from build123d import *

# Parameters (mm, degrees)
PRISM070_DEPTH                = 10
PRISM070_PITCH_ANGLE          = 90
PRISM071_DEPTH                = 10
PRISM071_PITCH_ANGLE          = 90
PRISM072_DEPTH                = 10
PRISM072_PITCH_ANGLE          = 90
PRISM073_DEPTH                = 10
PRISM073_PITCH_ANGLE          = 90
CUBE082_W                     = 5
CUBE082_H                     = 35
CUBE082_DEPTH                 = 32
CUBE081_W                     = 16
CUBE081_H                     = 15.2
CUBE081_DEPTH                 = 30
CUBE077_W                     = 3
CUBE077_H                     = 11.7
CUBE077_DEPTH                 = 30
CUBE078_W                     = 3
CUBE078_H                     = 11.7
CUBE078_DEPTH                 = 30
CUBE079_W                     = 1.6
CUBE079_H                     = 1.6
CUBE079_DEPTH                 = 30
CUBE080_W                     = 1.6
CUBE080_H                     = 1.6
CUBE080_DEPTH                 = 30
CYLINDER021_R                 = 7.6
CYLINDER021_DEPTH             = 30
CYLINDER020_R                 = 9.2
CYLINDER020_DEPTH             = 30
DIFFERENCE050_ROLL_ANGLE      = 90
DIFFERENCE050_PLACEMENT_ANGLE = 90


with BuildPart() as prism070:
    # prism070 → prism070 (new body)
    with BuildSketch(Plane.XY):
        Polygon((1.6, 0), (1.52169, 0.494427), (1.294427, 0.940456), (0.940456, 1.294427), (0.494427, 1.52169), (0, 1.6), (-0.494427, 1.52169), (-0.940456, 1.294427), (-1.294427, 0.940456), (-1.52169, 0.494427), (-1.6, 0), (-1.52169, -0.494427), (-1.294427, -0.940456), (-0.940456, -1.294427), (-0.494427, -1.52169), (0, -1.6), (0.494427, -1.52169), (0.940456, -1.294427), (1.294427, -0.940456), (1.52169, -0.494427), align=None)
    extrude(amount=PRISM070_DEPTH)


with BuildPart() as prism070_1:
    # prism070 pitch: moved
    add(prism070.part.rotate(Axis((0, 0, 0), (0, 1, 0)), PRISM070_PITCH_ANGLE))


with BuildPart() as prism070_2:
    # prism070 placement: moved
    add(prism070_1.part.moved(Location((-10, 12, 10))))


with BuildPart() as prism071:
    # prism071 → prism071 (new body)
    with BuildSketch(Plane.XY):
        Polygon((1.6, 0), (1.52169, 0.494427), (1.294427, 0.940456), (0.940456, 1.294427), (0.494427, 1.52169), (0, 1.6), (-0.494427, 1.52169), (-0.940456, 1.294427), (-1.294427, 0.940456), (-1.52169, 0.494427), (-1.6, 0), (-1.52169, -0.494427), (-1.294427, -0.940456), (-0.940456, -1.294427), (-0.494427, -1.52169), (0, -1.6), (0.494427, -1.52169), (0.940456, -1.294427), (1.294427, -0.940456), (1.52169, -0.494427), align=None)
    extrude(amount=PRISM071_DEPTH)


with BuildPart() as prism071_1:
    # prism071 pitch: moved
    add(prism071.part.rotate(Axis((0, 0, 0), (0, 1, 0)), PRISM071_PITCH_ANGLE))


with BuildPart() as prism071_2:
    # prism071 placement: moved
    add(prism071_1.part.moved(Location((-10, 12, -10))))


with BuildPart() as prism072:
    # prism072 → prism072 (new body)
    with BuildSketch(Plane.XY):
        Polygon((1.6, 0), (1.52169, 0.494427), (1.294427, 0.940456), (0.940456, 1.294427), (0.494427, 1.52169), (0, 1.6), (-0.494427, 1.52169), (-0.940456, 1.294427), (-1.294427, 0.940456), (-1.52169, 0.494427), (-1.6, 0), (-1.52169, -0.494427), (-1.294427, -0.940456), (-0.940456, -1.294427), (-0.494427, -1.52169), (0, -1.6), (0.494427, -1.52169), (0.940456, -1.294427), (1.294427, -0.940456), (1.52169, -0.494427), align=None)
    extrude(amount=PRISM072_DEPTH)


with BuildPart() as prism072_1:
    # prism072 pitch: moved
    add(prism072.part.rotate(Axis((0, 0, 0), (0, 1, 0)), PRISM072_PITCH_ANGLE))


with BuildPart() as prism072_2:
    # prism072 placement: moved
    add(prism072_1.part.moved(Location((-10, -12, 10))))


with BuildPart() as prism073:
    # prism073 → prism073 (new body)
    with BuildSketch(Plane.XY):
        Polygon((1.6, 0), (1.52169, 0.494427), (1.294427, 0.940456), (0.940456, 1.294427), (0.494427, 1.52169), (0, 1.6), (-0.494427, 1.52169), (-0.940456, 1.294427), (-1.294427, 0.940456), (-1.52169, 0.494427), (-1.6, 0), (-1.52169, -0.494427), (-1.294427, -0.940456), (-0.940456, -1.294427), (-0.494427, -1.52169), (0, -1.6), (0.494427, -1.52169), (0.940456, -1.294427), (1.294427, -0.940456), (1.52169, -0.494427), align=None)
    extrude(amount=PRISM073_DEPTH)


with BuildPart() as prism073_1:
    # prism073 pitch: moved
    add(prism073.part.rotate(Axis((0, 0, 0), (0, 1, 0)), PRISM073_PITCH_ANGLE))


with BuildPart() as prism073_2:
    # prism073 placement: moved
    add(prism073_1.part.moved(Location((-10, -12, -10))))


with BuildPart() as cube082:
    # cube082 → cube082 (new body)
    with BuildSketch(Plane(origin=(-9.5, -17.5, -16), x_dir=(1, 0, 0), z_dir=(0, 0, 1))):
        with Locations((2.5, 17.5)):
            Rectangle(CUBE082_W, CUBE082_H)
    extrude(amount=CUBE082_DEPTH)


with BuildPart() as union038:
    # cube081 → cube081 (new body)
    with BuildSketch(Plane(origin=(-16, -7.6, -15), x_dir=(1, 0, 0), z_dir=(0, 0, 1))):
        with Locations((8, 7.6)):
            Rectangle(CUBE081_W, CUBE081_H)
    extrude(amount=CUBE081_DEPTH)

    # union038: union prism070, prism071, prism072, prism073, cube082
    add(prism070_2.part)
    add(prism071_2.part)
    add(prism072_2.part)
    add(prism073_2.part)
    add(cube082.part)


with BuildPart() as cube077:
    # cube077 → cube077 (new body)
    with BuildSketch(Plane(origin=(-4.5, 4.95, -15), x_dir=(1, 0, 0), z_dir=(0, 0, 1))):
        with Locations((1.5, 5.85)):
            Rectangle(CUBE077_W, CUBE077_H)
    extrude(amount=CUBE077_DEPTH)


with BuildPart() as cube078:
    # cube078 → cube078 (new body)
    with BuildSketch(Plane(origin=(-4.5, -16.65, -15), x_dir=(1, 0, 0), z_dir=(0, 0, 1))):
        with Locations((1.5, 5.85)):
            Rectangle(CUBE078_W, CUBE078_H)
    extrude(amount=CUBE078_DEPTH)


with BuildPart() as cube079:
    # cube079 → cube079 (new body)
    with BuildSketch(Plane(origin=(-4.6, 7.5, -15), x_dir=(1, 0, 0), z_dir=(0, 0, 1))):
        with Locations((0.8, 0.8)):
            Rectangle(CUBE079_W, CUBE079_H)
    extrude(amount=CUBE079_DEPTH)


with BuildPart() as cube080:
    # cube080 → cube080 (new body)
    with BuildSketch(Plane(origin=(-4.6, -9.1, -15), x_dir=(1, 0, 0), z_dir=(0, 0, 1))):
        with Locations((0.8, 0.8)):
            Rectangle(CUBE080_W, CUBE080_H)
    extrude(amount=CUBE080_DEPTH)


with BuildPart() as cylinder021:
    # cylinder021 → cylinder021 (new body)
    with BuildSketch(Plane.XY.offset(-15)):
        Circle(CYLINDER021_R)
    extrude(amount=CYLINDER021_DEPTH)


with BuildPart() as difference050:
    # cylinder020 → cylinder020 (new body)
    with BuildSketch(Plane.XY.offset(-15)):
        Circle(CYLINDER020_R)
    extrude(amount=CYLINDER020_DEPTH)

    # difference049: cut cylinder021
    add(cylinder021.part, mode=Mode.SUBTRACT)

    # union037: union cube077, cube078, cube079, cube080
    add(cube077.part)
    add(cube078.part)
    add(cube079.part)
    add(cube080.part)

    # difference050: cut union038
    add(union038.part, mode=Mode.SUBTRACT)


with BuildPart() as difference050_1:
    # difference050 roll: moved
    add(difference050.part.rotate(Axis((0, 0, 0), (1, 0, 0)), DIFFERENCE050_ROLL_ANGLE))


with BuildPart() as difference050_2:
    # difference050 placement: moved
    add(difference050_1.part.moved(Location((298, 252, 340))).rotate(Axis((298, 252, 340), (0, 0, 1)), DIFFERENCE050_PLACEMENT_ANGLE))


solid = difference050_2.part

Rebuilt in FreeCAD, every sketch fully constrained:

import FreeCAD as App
import Part
import Sketcher
Q = App.Units.Quantity

doc = App.newDocument("Part")
body = doc.addObject("PartDesign::Body", "Body")

sketch1 = body.newObject("Sketcher::SketchObject", "Sketch")
sketch1.AttachmentSupport = (doc.getObject("XY_Plane"), [""])
sketch1.MapMode = "FlatFace"
sketch1.addGeometry([
    Part.LineSegment(App.Vector(1.6, 0, 0), App.Vector(1.52169, 0.494427, 0)),
    Part.LineSegment(App.Vector(1.52169, 0.494427, 0), App.Vector(1.294427, 0.940456, 0)),
    Part.LineSegment(App.Vector(1.294427, 0.940456, 0), App.Vector(0.940456, 1.294427, 0)),
    Part.LineSegment(App.Vector(0.940456, 1.294427, 0), App.Vector(0.494427, 1.52169, 0)),
    Part.LineSegment(App.Vector(0.494427, 1.52169, 0), App.Vector(0, 1.6, 0)),
    Part.LineSegment(App.Vector(0, 1.6, 0), App.Vector(-0.494427, 1.52169, 0)),
    Part.LineSegment(App.Vector(-0.494427, 1.52169, 0), App.Vector(-0.940456, 1.294427, 0)),
    Part.LineSegment(App.Vector(-0.940456, 1.294427, 0), App.Vector(-1.294427, 0.940456, 0)),
    Part.LineSegment(App.Vector(-1.294427, 0.940456, 0), App.Vector(-1.52169, 0.494427, 0)),
    Part.LineSegment(App.Vector(-1.52169, 0.494427, 0), App.Vector(-1.6, 0, 0)),
    Part.LineSegment(App.Vector(-1.6, 0, 0), App.Vector(-1.52169, -0.494427, 0)),
    Part.LineSegment(App.Vector(-1.52169, -0.494427, 0), App.Vector(-1.294427, -0.940456, 0)),
    Part.LineSegment(App.Vector(-1.294427, -0.940456, 0), App.Vector(-0.940456, -1.294427, 0)),
    Part.LineSegment(App.Vector(-0.940456, -1.294427, 0), App.Vector(-0.494427, -1.52169, 0)),
    Part.LineSegment(App.Vector(-0.494427, -1.52169, 0), App.Vector(0, -1.6, 0)),
    Part.LineSegment(App.Vector(0, -1.6, 0), App.Vector(0.494427, -1.52169, 0)),
    Part.LineSegment(App.Vector(0.494427, -1.52169, 0), App.Vector(0.940456, -1.294427, 0)),
    Part.LineSegment(App.Vector(0.940456, -1.294427, 0), App.Vector(1.294427, -0.940456, 0)),
    Part.LineSegment(App.Vector(1.294427, -0.940456, 0), App.Vector(1.52169, -0.494427, 0)),
    Part.LineSegment(App.Vector(1.52169, -0.494427, 0), App.Vector(1.6, 0, 0)),
], False)
sketch1.addConstraint([
    Sketcher.Constraint("Coincident", 0, 2, 1, 1),
    Sketcher.Constraint("Coincident", 1, 2, 2, 1),
    Sketcher.Constraint("Coincident", 2, 2, 3, 1),
    Sketcher.Constraint("Coincident", 3, 2, 4, 1),
    Sketcher.Constraint("Coincident", 4, 2, 5, 1),
    Sketcher.Constraint("Coincident", 5, 2, 6, 1),
    Sketcher.Constraint("Coincident", 6, 2, 7, 1),
    Sketcher.Constraint("Coincident", 7, 2, 8, 1),
    Sketcher.Constraint("Coincident", 8, 2, 9, 1),
    Sketcher.Constraint("Coincident", 9, 2, 10, 1),
    Sketcher.Constraint("Coincident", 10, 2, 11, 1),
    Sketcher.Constraint("Coincident", 11, 2, 12, 1),
    Sketcher.Constraint("Coincident", 12, 2, 13, 1),
    Sketcher.Constraint("Coincident", 13, 2, 14, 1),
    Sketcher.Constraint("Coincident", 14, 2, 15, 1),
    Sketcher.Constraint("Coincident", 15, 2, 16, 1),
    Sketcher.Constraint("Coincident", 16, 2, 17, 1),
    Sketcher.Constraint("Coincident", 17, 2, 18, 1),
    Sketcher.Constraint("Coincident", 18, 2, 19, 1),
    Sketcher.Constraint("Coincident", 19, 2, 0, 1),
    Sketcher.Constraint("Symmetric", 0, 2, 10, 2, -1, 1),
    Sketcher.Constraint("Symmetric", 1, 2, 11, 2, -1, 1),
    Sketcher.Constraint("Symmetric", 2, 2, 12, 2, -1, 1),
    Sketcher.Constraint("Symmetric", 3, 2, 13, 2, -1, 1),
    Sketcher.Constraint("Symmetric", 4, 2, 14, 2, -1, 1),
    Sketcher.Constraint("Symmetric", 5, 2, 15, 2, -1, 1),
    Sketcher.Constraint("Symmetric", 6, 2, 16, 2, -1, 1),
    Sketcher.Constraint("Symmetric", 7, 2, 17, 2, -1, 1),
    Sketcher.Constraint("Symmetric", 8, 2, 18, 2, -1, 1),
    Sketcher.Constraint("Symmetric", 9, 2, 19, 2, -1, 1),
    Sketcher.Constraint("Symmetric", 3, 2, 5, 2, -2),
    Sketcher.Constraint("Symmetric", 2, 2, 6, 2, -2),
    Sketcher.Constraint("Symmetric", 1, 2, 7, 2, -2),
    Sketcher.Constraint("Symmetric", 0, 2, 8, 2, -2),
    Sketcher.Constraint("PointOnObject", 4, 2, -2),
    Sketcher.Constraint("PointOnObject", 9, 2, -1),
    Sketcher.Constraint("Perpendicular", 0, 5),
    Sketcher.Constraint("Perpendicular", 1, 6),
    Sketcher.Constraint("Perpendicular", 2, 7),
    Sketcher.Constraint("Equal", 0, 1),
    Sketcher.Constraint("Equal", 1, 2),
    Sketcher.Constraint("Equal", 2, 3),
    Sketcher.Constraint("Equal", 3, 4),
    Sketcher.Constraint("Angle", 1, Q("116.999987 deg")),
    Sketcher.Constraint("DistanceY", -1, 1, 4, 2, Q("1.6 mm")),
    Sketcher.Constraint("DistanceY", 0, 2, 2, 2, Q("0.8 mm")),
])
pad1 = body.newObject("PartDesign::Pad", "Pad")
pad1.Profile = sketch1
pad1.Length = 10
body2 = doc.addObject("PartDesign::Body", "Body001")
doc.recompute()

body.Placement = App.Placement(App.Vector(0, 0, 0), App.Rotation(App.Vector(0, 1, 0), 90))
boolean = body2.newObject("PartDesign::Boolean", "Boolean")
boolean.Type = "Fuse"
boolean.addObjects([body])
body3 = doc.addObject("PartDesign::Body", "Body002")
doc.recompute()

body2.Placement = App.Placement(App.Vector(-10, 12, 10), App.Rotation(App.Vector(0, 0, 1), 0))
boolean2 = body3.newObject("PartDesign::Boolean", "Boolean001")
boolean2.Type = "Fuse"
boolean2.addObjects([body2])
body4 = doc.addObject("PartDesign::Body", "Body003")

sketch2 = body4.newObject("Sketcher::SketchObject", "Sketch001")
sketch2.AttachmentSupport = (doc.getObject("XY_Plane003"), [""])
sketch2.MapMode = "FlatFace"
sketch2.addGeometry([
    Part.LineSegment(App.Vector(1.6, 0, 0), App.Vector(1.52169, 0.494427, 0)),
    Part.LineSegment(App.Vector(1.52169, 0.494427, 0), App.Vector(1.294427, 0.940456, 0)),
    Part.LineSegment(App.Vector(1.294427, 0.940456, 0), App.Vector(0.940456, 1.294427, 0)),
    Part.LineSegment(App.Vector(0.940456, 1.294427, 0), App.Vector(0.494427, 1.52169, 0)),
    Part.LineSegment(App.Vector(0.494427, 1.52169, 0), App.Vector(0, 1.6, 0)),
    Part.LineSegment(App.Vector(0, 1.6, 0), App.Vector(-0.494427, 1.52169, 0)),
    Part.LineSegment(App.Vector(-0.494427, 1.52169, 0), App.Vector(-0.940456, 1.294427, 0)),
    Part.LineSegment(App.Vector(-0.940456, 1.294427, 0), App.Vector(-1.294427, 0.940456, 0)),
    Part.LineSegment(App.Vector(-1.294427, 0.940456, 0), App.Vector(-1.52169, 0.494427, 0)),
    Part.LineSegment(App.Vector(-1.52169, 0.494427, 0), App.Vector(-1.6, 0, 0)),
    Part.LineSegment(App.Vector(-1.6, 0, 0), App.Vector(-1.52169, -0.494427, 0)),
    Part.LineSegment(App.Vector(-1.52169, -0.494427, 0), App.Vector(-1.294427, -0.940456, 0)),
    Part.LineSegment(App.Vector(-1.294427, -0.940456, 0), App.Vector(-0.940456, -1.294427, 0)),
    Part.LineSegment(App.Vector(-0.940456, -1.294427, 0), App.Vector(-0.494427, -1.52169, 0)),
    Part.LineSegment(App.Vector(-0.494427, -1.52169, 0), App.Vector(0, -1.6, 0)),
    Part.LineSegment(App.Vector(0, -1.6, 0), App.Vector(0.494427, -1.52169, 0)),
    Part.LineSegment(App.Vector(0.494427, -1.52169, 0), App.Vector(0.940456, -1.294427, 0)),
    Part.LineSegment(App.Vector(0.940456, -1.294427, 0), App.Vector(1.294427, -0.940456, 0)),
    Part.LineSegment(App.Vector(1.294427, -0.940456, 0), App.Vector(1.52169, -0.494427, 0)),
    Part.LineSegment(App.Vector(1.52169, -0.494427, 0), App.Vector(1.6, 0, 0)),
], False)
sketch2.addConstraint([
    Sketcher.Constraint("Coincident", 0, 2, 1, 1),
    Sketcher.Constraint("Coincident", 1, 2, 2, 1),
    Sketcher.Constraint("Coincident", 2, 2, 3, 1),
    Sketcher.Constraint("Coincident", 3, 2, 4, 1),
    Sketcher.Constraint("Coincident", 4, 2, 5, 1),
    Sketcher.Constraint("Coincident", 5, 2, 6, 1),
    Sketcher.Constraint("Coincident", 6, 2, 7, 1),
    Sketcher.Constraint("Coincident", 7, 2, 8, 1),
    Sketcher.Constraint("Coincident", 8, 2, 9, 1),
    Sketcher.Constraint("Coincident", 9, 2, 10, 1),
    Sketcher.Constraint("Coincident", 10, 2, 11, 1),
    Sketcher.Constraint("Coincident", 11, 2, 12, 1),
    Sketcher.Constraint("Coincident", 12, 2, 13, 1),
    Sketcher.Constraint("Coincident", 13, 2, 14, 1),
    Sketcher.Constraint("Coincident", 14, 2, 15, 1),
    Sketcher.Constraint("Coincident", 15, 2, 16, 1),
    Sketcher.Constraint("Coincident", 16, 2, 17, 1),
    Sketcher.Constraint("Coincident", 17, 2, 18, 1),
    Sketcher.Constraint("Coincident", 18, 2, 19, 1),
    Sketcher.Constraint("Coincident", 19, 2, 0, 1),
    Sketcher.Constraint("Symmetric", 0, 2, 10, 2, -1, 1),
    Sketcher.Constraint("Symmetric", 1, 2, 11, 2, -1, 1),
    Sketcher.Constraint("Symmetric", 2, 2, 12, 2, -1, 1),
    Sketcher.Constraint("Symmetric", 3, 2, 13, 2, -1, 1),
    Sketcher.Constraint("Symmetric", 4, 2, 14, 2, -1, 1),
    Sketcher.Constraint("Symmetric", 5, 2, 15, 2, -1, 1),
    Sketcher.Constraint("Symmetric", 6, 2, 16, 2, -1, 1),
    Sketcher.Constraint("Symmetric", 7, 2, 17, 2, -1, 1),
    Sketcher.Constraint("Symmetric", 8, 2, 18, 2, -1, 1),
    Sketcher.Constraint("Symmetric", 9, 2, 19, 2, -1, 1),
    Sketcher.Constraint("Symmetric", 3, 2, 5, 2, -2),
    Sketcher.Constraint("Symmetric", 2, 2, 6, 2, -2),
    Sketcher.Constraint("Symmetric", 1, 2, 7, 2, -2),
    Sketcher.Constraint("Symmetric", 0, 2, 8, 2, -2),
    Sketcher.Constraint("PointOnObject", 4, 2, -2),
    Sketcher.Constraint("PointOnObject", 9, 2, -1),
    Sketcher.Constraint("Perpendicular", 0, 5),
    Sketcher.Constraint("Perpendicular", 1, 6),
    Sketcher.Constraint("Perpendicular", 2, 7),
    Sketcher.Constraint("Equal", 0, 1),
    Sketcher.Constraint("Equal", 1, 2),
    Sketcher.Constraint("Equal", 2, 3),
    Sketcher.Constraint("Equal", 3, 4),
    Sketcher.Constraint("Angle", 1, Q("116.999987 deg")),
    Sketcher.Constraint("DistanceY", -1, 1, 4, 2, Q("1.6 mm")),
    Sketcher.Constraint("DistanceY", 0, 2, 2, 2, Q("0.8 mm")),
])
pad2 = body4.newObject("PartDesign::Pad", "Pad001")
pad2.Profile = sketch2
pad2.Length = 10
body5 = doc.addObject("PartDesign::Body", "Body004")
doc.recompute()

body4.Placement = App.Placement(App.Vector(0, 0, 0), App.Rotation(App.Vector(0, 1, 0), 90))
boolean3 = body5.newObject("PartDesign::Boolean", "Boolean002")
boolean3.Type = "Fuse"
boolean3.addObjects([body4])
body6 = doc.addObject("PartDesign::Body", "Body005")
doc.recompute()

body5.Placement = App.Placement(App.Vector(-10, 12, -10), App.Rotation(App.Vector(0, 0, 1), 0))
boolean4 = body6.newObject("PartDesign::Boolean", "Boolean003")
boolean4.Type = "Fuse"
boolean4.addObjects([body5])
body7 = doc.addObject("PartDesign::Body", "Body006")

sketch3 = body7.newObject("Sketcher::SketchObject", "Sketch002")
sketch3.AttachmentSupport = (doc.getObject("XY_Plane006"), [""])
sketch3.MapMode = "FlatFace"
sketch3.addGeometry([
    Part.LineSegment(App.Vector(1.6, 0, 0), App.Vector(1.52169, 0.494427, 0)),
    Part.LineSegment(App.Vector(1.52169, 0.494427, 0), App.Vector(1.294427, 0.940456, 0)),
    Part.LineSegment(App.Vector(1.294427, 0.940456, 0), App.Vector(0.940456, 1.294427, 0)),
    Part.LineSegment(App.Vector(0.940456, 1.294427, 0), App.Vector(0.494427, 1.52169, 0)),
    Part.LineSegment(App.Vector(0.494427, 1.52169, 0), App.Vector(0, 1.6, 0)),
    Part.LineSegment(App.Vector(0, 1.6, 0), App.Vector(-0.494427, 1.52169, 0)),
    Part.LineSegment(App.Vector(-0.494427, 1.52169, 0), App.Vector(-0.940456, 1.294427, 0)),
    Part.LineSegment(App.Vector(-0.940456, 1.294427, 0), App.Vector(-1.294427, 0.940456, 0)),
    Part.LineSegment(App.Vector(-1.294427, 0.940456, 0), App.Vector(-1.52169, 0.494427, 0)),
    Part.LineSegment(App.Vector(-1.52169, 0.494427, 0), App.Vector(-1.6, 0, 0)),
    Part.LineSegment(App.Vector(-1.6, 0, 0), App.Vector(-1.52169, -0.494427, 0)),
    Part.LineSegment(App.Vector(-1.52169, -0.494427, 0), App.Vector(-1.294427, -0.940456, 0)),
    Part.LineSegment(App.Vector(-1.294427, -0.940456, 0), App.Vector(-0.940456, -1.294427, 0)),
    Part.LineSegment(App.Vector(-0.940456, -1.294427, 0), App.Vector(-0.494427, -1.52169, 0)),
    Part.LineSegment(App.Vector(-0.494427, -1.52169, 0), App.Vector(0, -1.6, 0)),
    Part.LineSegment(App.Vector(0, -1.6, 0), App.Vector(0.494427, -1.52169, 0)),
    Part.LineSegment(App.Vector(0.494427, -1.52169, 0), App.Vector(0.940456, -1.294427, 0)),
    Part.LineSegment(App.Vector(0.940456, -1.294427, 0), App.Vector(1.294427, -0.940456, 0)),
    Part.LineSegment(App.Vector(1.294427, -0.940456, 0), App.Vector(1.52169, -0.494427, 0)),
    Part.LineSegment(App.Vector(1.52169, -0.494427, 0), App.Vector(1.6, 0, 0)),
], False)
sketch3.addConstraint([
    Sketcher.Constraint("Coincident", 0, 2, 1, 1),
    Sketcher.Constraint("Coincident", 1, 2, 2, 1),
    Sketcher.Constraint("Coincident", 2, 2, 3, 1),
    Sketcher.Constraint("Coincident", 3, 2, 4, 1),
    Sketcher.Constraint("Coincident", 4, 2, 5, 1),
    Sketcher.Constraint("Coincident", 5, 2, 6, 1),
    Sketcher.Constraint("Coincident", 6, 2, 7, 1),
    Sketcher.Constraint("Coincident", 7, 2, 8, 1),
    Sketcher.Constraint("Coincident", 8, 2, 9, 1),
    Sketcher.Constraint("Coincident", 9, 2, 10, 1),
    Sketcher.Constraint("Coincident", 10, 2, 11, 1),
    Sketcher.Constraint("Coincident", 11, 2, 12, 1),
    Sketcher.Constraint("Coincident", 12, 2, 13, 1),
    Sketcher.Constraint("Coincident", 13, 2, 14, 1),
    Sketcher.Constraint("Coincident", 14, 2, 15, 1),
    Sketcher.Constraint("Coincident", 15, 2, 16, 1),
    Sketcher.Constraint("Coincident", 16, 2, 17, 1),
    Sketcher.Constraint("Coincident", 17, 2, 18, 1),
    Sketcher.Constraint("Coincident", 18, 2, 19, 1),
    Sketcher.Constraint("Coincident", 19, 2, 0, 1),
    Sketcher.Constraint("Symmetric", 0, 2, 10, 2, -1, 1),
    Sketcher.Constraint("Symmetric", 1, 2, 11, 2, -1, 1),
    Sketcher.Constraint("Symmetric", 2, 2, 12, 2, -1, 1),
    Sketcher.Constraint("Symmetric", 3, 2, 13, 2, -1, 1),
    Sketcher.Constraint("Symmetric", 4, 2, 14, 2, -1, 1),
    Sketcher.Constraint("Symmetric", 5, 2, 15, 2, -1, 1),
    Sketcher.Constraint("Symmetric", 6, 2, 16, 2, -1, 1),
    Sketcher.Constraint("Symmetric", 7, 2, 17, 2, -1, 1),
    Sketcher.Constraint("Symmetric", 8, 2, 18, 2, -1, 1),
    Sketcher.Constraint("Symmetric", 9, 2, 19, 2, -1, 1),
    Sketcher.Constraint("Symmetric", 3, 2, 5, 2, -2),
    Sketcher.Constraint("Symmetric", 2, 2, 6, 2, -2),
    Sketcher.Constraint("Symmetric", 1, 2, 7, 2, -2),
    Sketcher.Constraint("Symmetric", 0, 2, 8, 2, -2),
    Sketcher.Constraint("PointOnObject", 4, 2, -2),
    Sketcher.Constraint("PointOnObject", 9, 2, -1),
    Sketcher.Constraint("Perpendicular", 0, 5),
    Sketcher.Constraint("Perpendicular", 1, 6),
    Sketcher.Constraint("Perpendicular", 2, 7),
    Sketcher.Constraint("Equal", 0, 1),
    Sketcher.Constraint("Equal", 1, 2),
    Sketcher.Constraint("Equal", 2, 3),
    Sketcher.Constraint("Equal", 3, 4),
    Sketcher.Constraint("Angle", 1, Q("116.999987 deg")),
    Sketcher.Constraint("DistanceY", -1, 1, 4, 2, Q("1.6 mm")),
    Sketcher.Constraint("DistanceY", 0, 2, 2, 2, Q("0.8 mm")),
])
pad3 = body7.newObject("PartDesign::Pad", "Pad002")
pad3.Profile = sketch3
pad3.Length = 10
body8 = doc.addObject("PartDesign::Body", "Body007")
doc.recompute()

body7.Placement = App.Placement(App.Vector(0, 0, 0), App.Rotation(App.Vector(0, 1, 0), 90))
boolean5 = body8.newObject("PartDesign::Boolean", "Boolean004")
boolean5.Type = "Fuse"
boolean5.addObjects([body7])
body9 = doc.addObject("PartDesign::Body", "Body008")
doc.recompute()

body8.Placement = App.Placement(App.Vector(-10, -12, 10), App.Rotation(App.Vector(0, 0, 1), 0))
boolean6 = body9.newObject("PartDesign::Boolean", "Boolean005")
boolean6.Type = "Fuse"
boolean6.addObjects([body8])
body10 = doc.addObject("PartDesign::Body", "Body009")

sketch4 = body10.newObject("Sketcher::SketchObject", "Sketch003")
sketch4.AttachmentSupport = (doc.getObject("XY_Plane009"), [""])
sketch4.MapMode = "FlatFace"
sketch4.addGeometry([
    Part.LineSegment(App.Vector(1.6, 0, 0), App.Vector(1.52169, 0.494427, 0)),
    Part.LineSegment(App.Vector(1.52169, 0.494427, 0), App.Vector(1.294427, 0.940456, 0)),
    Part.LineSegment(App.Vector(1.294427, 0.940456, 0), App.Vector(0.940456, 1.294427, 0)),
    Part.LineSegment(App.Vector(0.940456, 1.294427, 0), App.Vector(0.494427, 1.52169, 0)),
    Part.LineSegment(App.Vector(0.494427, 1.52169, 0), App.Vector(0, 1.6, 0)),
    Part.LineSegment(App.Vector(0, 1.6, 0), App.Vector(-0.494427, 1.52169, 0)),
    Part.LineSegment(App.Vector(-0.494427, 1.52169, 0), App.Vector(-0.940456, 1.294427, 0)),
    Part.LineSegment(App.Vector(-0.940456, 1.294427, 0), App.Vector(-1.294427, 0.940456, 0)),
    Part.LineSegment(App.Vector(-1.294427, 0.940456, 0), App.Vector(-1.52169, 0.494427, 0)),
    Part.LineSegment(App.Vector(-1.52169, 0.494427, 0), App.Vector(-1.6, 0, 0)),
    Part.LineSegment(App.Vector(-1.6, 0, 0), App.Vector(-1.52169, -0.494427, 0)),
    Part.LineSegment(App.Vector(-1.52169, -0.494427, 0), App.Vector(-1.294427, -0.940456, 0)),
    Part.LineSegment(App.Vector(-1.294427, -0.940456, 0), App.Vector(-0.940456, -1.294427, 0)),
    Part.LineSegment(App.Vector(-0.940456, -1.294427, 0), App.Vector(-0.494427, -1.52169, 0)),
    Part.LineSegment(App.Vector(-0.494427, -1.52169, 0), App.Vector(0, -1.6, 0)),
    Part.LineSegment(App.Vector(0, -1.6, 0), App.Vector(0.494427, -1.52169, 0)),
    Part.LineSegment(App.Vector(0.494427, -1.52169, 0), App.Vector(0.940456, -1.294427, 0)),
    Part.LineSegment(App.Vector(0.940456, -1.294427, 0), App.Vector(1.294427, -0.940456, 0)),
    Part.LineSegment(App.Vector(1.294427, -0.940456, 0), App.Vector(1.52169, -0.494427, 0)),
    Part.LineSegment(App.Vector(1.52169, -0.494427, 0), App.Vector(1.6, 0, 0)),
], False)
sketch4.addConstraint([
    Sketcher.Constraint("Coincident", 0, 2, 1, 1),
    Sketcher.Constraint("Coincident", 1, 2, 2, 1),
    Sketcher.Constraint("Coincident", 2, 2, 3, 1),
    Sketcher.Constraint("Coincident", 3, 2, 4, 1),
    Sketcher.Constraint("Coincident", 4, 2, 5, 1),
    Sketcher.Constraint("Coincident", 5, 2, 6, 1),
    Sketcher.Constraint("Coincident", 6, 2, 7, 1),
    Sketcher.Constraint("Coincident", 7, 2, 8, 1),
    Sketcher.Constraint("Coincident", 8, 2, 9, 1),
    Sketcher.Constraint("Coincident", 9, 2, 10, 1),
    Sketcher.Constraint("Coincident", 10, 2, 11, 1),
    Sketcher.Constraint("Coincident", 11, 2, 12, 1),
    Sketcher.Constraint("Coincident", 12, 2, 13, 1),
    Sketcher.Constraint("Coincident", 13, 2, 14, 1),
    Sketcher.Constraint("Coincident", 14, 2, 15, 1),
    Sketcher.Constraint("Coincident", 15, 2, 16, 1),
    Sketcher.Constraint("Coincident", 16, 2, 17, 1),
    Sketcher.Constraint("Coincident", 17, 2, 18, 1),
    Sketcher.Constraint("Coincident", 18, 2, 19, 1),
    Sketcher.Constraint("Coincident", 19, 2, 0, 1),
    Sketcher.Constraint("Symmetric", 0, 2, 10, 2, -1, 1),
    Sketcher.Constraint("Symmetric", 1, 2, 11, 2, -1, 1),
    Sketcher.Constraint("Symmetric", 2, 2, 12, 2, -1, 1),
    Sketcher.Constraint("Symmetric", 3, 2, 13, 2, -1, 1),
    Sketcher.Constraint("Symmetric", 4, 2, 14, 2, -1, 1),
    Sketcher.Constraint("Symmetric", 5, 2, 15, 2, -1, 1),
    Sketcher.Constraint("Symmetric", 6, 2, 16, 2, -1, 1),
    Sketcher.Constraint("Symmetric", 7, 2, 17, 2, -1, 1),
    Sketcher.Constraint("Symmetric", 8, 2, 18, 2, -1, 1),
    Sketcher.Constraint("Symmetric", 9, 2, 19, 2, -1, 1),
    Sketcher.Constraint("Symmetric", 3, 2, 5, 2, -2),
    Sketcher.Constraint("Symmetric", 2, 2, 6, 2, -2),
    Sketcher.Constraint("Symmetric", 1, 2, 7, 2, -2),
    Sketcher.Constraint("Symmetric", 0, 2, 8, 2, -2),
    Sketcher.Constraint("PointOnObject", 4, 2, -2),
    Sketcher.Constraint("PointOnObject", 9, 2, -1),
    Sketcher.Constraint("Perpendicular", 0, 5),
    Sketcher.Constraint("Perpendicular", 1, 6),
    Sketcher.Constraint("Perpendicular", 2, 7),
    Sketcher.Constraint("Equal", 0, 1),
    Sketcher.Constraint("Equal", 1, 2),
    Sketcher.Constraint("Equal", 2, 3),
    Sketcher.Constraint("Equal", 3, 4),
    Sketcher.Constraint("Angle", 1, Q("116.999987 deg")),
    Sketcher.Constraint("DistanceY", -1, 1, 4, 2, Q("1.6 mm")),
    Sketcher.Constraint("DistanceY", 0, 2, 2, 2, Q("0.8 mm")),
])
pad4 = body10.newObject("PartDesign::Pad", "Pad003")
pad4.Profile = sketch4
pad4.Length = 10
body11 = doc.addObject("PartDesign::Body", "Body010")
doc.recompute()

body10.Placement = App.Placement(App.Vector(0, 0, 0), App.Rotation(App.Vector(0, 1, 0), 90))
boolean7 = body11.newObject("PartDesign::Boolean", "Boolean006")
boolean7.Type = "Fuse"
boolean7.addObjects([body10])
body12 = doc.addObject("PartDesign::Body", "Body011")
doc.recompute()

body11.Placement = App.Placement(App.Vector(-10, -12, -10), App.Rotation(App.Vector(0, 0, 1), 0))
boolean8 = body12.newObject("PartDesign::Boolean", "Boolean007")
boolean8.Type = "Fuse"
boolean8.addObjects([body11])
body13 = doc.addObject("PartDesign::Body", "Body012")

sketch5 = body13.newObject("Sketcher::SketchObject", "Sketch004")
sketch5.AttachmentSupport = (doc.getObject("XY_Plane012"), [""])
sketch5.MapMode = "FlatFace"
sketch5.AttachmentOffset = App.Placement(App.Vector(0, 0, -16), App.Rotation())
sketch5.addGeometry([
    Part.LineSegment(App.Vector(-9.5, 17.5, 0), App.Vector(-9.5, -17.5, 0)),
    Part.LineSegment(App.Vector(-9.5, -17.5, 0), App.Vector(-4.5, -17.5, 0)),
    Part.LineSegment(App.Vector(-4.5, -17.5, 0), App.Vector(-4.5, 17.5, 0)),
    Part.LineSegment(App.Vector(-4.5, 17.5, 0), App.Vector(-9.5, 17.5, 0)),
], False)
sketch5.addConstraint([
    Sketcher.Constraint("Coincident", 0, 2, 1, 1),
    Sketcher.Constraint("Coincident", 1, 2, 2, 1),
    Sketcher.Constraint("Coincident", 2, 2, 3, 1),
    Sketcher.Constraint("Coincident", 3, 2, 0, 1),
    Sketcher.Constraint("Vertical", 0),
    Sketcher.Constraint("Horizontal", 1),
    Sketcher.Constraint("Vertical", 2),
    Sketcher.Constraint("Horizontal", 3),
    Sketcher.Constraint("DistanceX", 1, 1, 1, 2, Q("5 mm")),
    Sketcher.Constraint("DistanceY", 0, 2, 0, 1, Q("35 mm")),
    Sketcher.Constraint("DistanceX", 0, 2, -1, 1, Q("9.5 mm")),
    Sketcher.Constraint("DistanceY", 0, 2, -1, 1, Q("17.5 mm")),
])
pad5 = body13.newObject("PartDesign::Pad", "Pad004")
pad5.Profile = sketch5
pad5.Length = 32
body14 = doc.addObject("PartDesign::Body", "Body013")
body14.AllowCompound = True

sketch6 = body14.newObject("Sketcher::SketchObject", "Sketch005")
sketch6.AttachmentSupport = (doc.getObject("XY_Plane013"), [""])
sketch6.MapMode = "FlatFace"
sketch6.AttachmentOffset = App.Placement(App.Vector(0, 0, -15), App.Rotation())
sketch6.addGeometry([
    Part.LineSegment(App.Vector(-16, 7.6, 0), App.Vector(-16, -7.6, 0)),
    Part.LineSegment(App.Vector(-16, -7.6, 0), App.Vector(0, -7.6, 0)),
    Part.LineSegment(App.Vector(0, -7.6, 0), App.Vector(0, 7.6, 0)),
    Part.LineSegment(App.Vector(0, 7.6, 0), App.Vector(-16, 7.6, 0)),
], False)
sketch6.addConstraint([
    Sketcher.Constraint("Coincident", 0, 2, 1, 1),
    Sketcher.Constraint("Coincident", 1, 2, 2, 1),
    Sketcher.Constraint("Coincident", 2, 2, 3, 1),
    Sketcher.Constraint("Coincident", 3, 2, 0, 1),
    Sketcher.Constraint("Vertical", 0),
    Sketcher.Constraint("Horizontal", 1),
    Sketcher.Constraint("Vertical", 2),
    Sketcher.Constraint("Horizontal", 3),
    Sketcher.Constraint("Symmetric", 1, 2, 2, 2, -1, 1),
    Sketcher.Constraint("DistanceX", 1, 1, 1, 2, Q("16 mm")),
    Sketcher.Constraint("DistanceY", 0, 2, 0, 1, Q("15.2 mm")),
])
pad6 = body14.newObject("PartDesign::Pad", "Pad005")
pad6.Profile = sketch6
pad6.Length = 30
doc.recompute()

boolean9 = body14.newObject("PartDesign::Boolean", "Boolean008")
boolean9.Type = "Fuse"
boolean9.addObjects([body3])
doc.recompute()

boolean10 = body14.newObject("PartDesign::Boolean", "Boolean009")
boolean10.Type = "Fuse"
boolean10.addObjects([body6])
doc.recompute()

boolean11 = body14.newObject("PartDesign::Boolean", "Boolean010")
boolean11.Type = "Fuse"
boolean11.addObjects([body9])
doc.recompute()

boolean12 = body14.newObject("PartDesign::Boolean", "Boolean011")
boolean12.Type = "Fuse"
boolean12.addObjects([body12])
doc.recompute()

boolean13 = body14.newObject("PartDesign::Boolean", "Boolean012")
boolean13.Type = "Fuse"
boolean13.addObjects([body13])
body15 = doc.addObject("PartDesign::Body", "Body014")

sketch7 = body15.newObject("Sketcher::SketchObject", "Sketch006")
sketch7.AttachmentSupport = (doc.getObject("XY_Plane014"), [""])
sketch7.MapMode = "FlatFace"
sketch7.AttachmentOffset = App.Placement(App.Vector(0, 0, -15), App.Rotation())
sketch7.addGeometry([
    Part.LineSegment(App.Vector(-4.5, 16.65, 0), App.Vector(-4.5, 4.95, 0)),
    Part.LineSegment(App.Vector(-4.5, 4.95, 0), App.Vector(-1.5, 4.95, 0)),
    Part.LineSegment(App.Vector(-1.5, 4.95, 0), App.Vector(-1.5, 16.65, 0)),
    Part.LineSegment(App.Vector(-1.5, 16.65, 0), App.Vector(-4.5, 16.65, 0)),
], False)
sketch7.addConstraint([
    Sketcher.Constraint("Coincident", 0, 2, 1, 1),
    Sketcher.Constraint("Coincident", 1, 2, 2, 1),
    Sketcher.Constraint("Coincident", 2, 2, 3, 1),
    Sketcher.Constraint("Coincident", 3, 2, 0, 1),
    Sketcher.Constraint("Vertical", 0),
    Sketcher.Constraint("Horizontal", 1),
    Sketcher.Constraint("Vertical", 2),
    Sketcher.Constraint("Horizontal", 3),
    Sketcher.Constraint("DistanceX", 1, 1, 1, 2, Q("3 mm")),
    Sketcher.Constraint("DistanceY", 0, 2, 0, 1, Q("11.7 mm")),
    Sketcher.Constraint("DistanceX", 0, 2, -1, 1, Q("4.5 mm")),
    Sketcher.Constraint("DistanceY", -1, 1, 0, 2, Q("4.95 mm")),
])
pad7 = body15.newObject("PartDesign::Pad", "Pad006")
pad7.Profile = sketch7
pad7.Length = 30
body16 = doc.addObject("PartDesign::Body", "Body015")

sketch8 = body16.newObject("Sketcher::SketchObject", "Sketch007")
sketch8.AttachmentSupport = (doc.getObject("XY_Plane015"), [""])
sketch8.MapMode = "FlatFace"
sketch8.AttachmentOffset = App.Placement(App.Vector(0, 0, -15), App.Rotation())
sketch8.addGeometry([
    Part.LineSegment(App.Vector(-4.5, -4.95, 0), App.Vector(-4.5, -16.65, 0)),
    Part.LineSegment(App.Vector(-4.5, -16.65, 0), App.Vector(-1.5, -16.65, 0)),
    Part.LineSegment(App.Vector(-1.5, -16.65, 0), App.Vector(-1.5, -4.95, 0)),
    Part.LineSegment(App.Vector(-1.5, -4.95, 0), App.Vector(-4.5, -4.95, 0)),
], False)
sketch8.addConstraint([
    Sketcher.Constraint("Coincident", 0, 2, 1, 1),
    Sketcher.Constraint("Coincident", 1, 2, 2, 1),
    Sketcher.Constraint("Coincident", 2, 2, 3, 1),
    Sketcher.Constraint("Coincident", 3, 2, 0, 1),
    Sketcher.Constraint("Vertical", 0),
    Sketcher.Constraint("Horizontal", 1),
    Sketcher.Constraint("Vertical", 2),
    Sketcher.Constraint("Horizontal", 3),
    Sketcher.Constraint("DistanceX", 1, 1, 1, 2, Q("3 mm")),
    Sketcher.Constraint("DistanceY", 0, 2, 0, 1, Q("11.7 mm")),
    Sketcher.Constraint("DistanceX", 0, 2, -1, 1, Q("4.5 mm")),
    Sketcher.Constraint("DistanceY", 0, 2, -1, 1, Q("16.65 mm")),
])
pad8 = body16.newObject("PartDesign::Pad", "Pad007")
pad8.Profile = sketch8
pad8.Length = 30
body17 = doc.addObject("PartDesign::Body", "Body016")

sketch9 = body17.newObject("Sketcher::SketchObject", "Sketch008")
sketch9.AttachmentSupport = (doc.getObject("XY_Plane016"), [""])
sketch9.MapMode = "FlatFace"
sketch9.AttachmentOffset = App.Placement(App.Vector(0, 0, -15), App.Rotation())
sketch9.addGeometry([
    Part.LineSegment(App.Vector(-4.6, 9.1, 0), App.Vector(-4.6, 7.5, 0)),
    Part.LineSegment(App.Vector(-4.6, 7.5, 0), App.Vector(-3, 7.5, 0)),
    Part.LineSegment(App.Vector(-3, 7.5, 0), App.Vector(-3, 9.1, 0)),
    Part.LineSegment(App.Vector(-3, 9.1, 0), App.Vector(-4.6, 9.1, 0)),
], False)
sketch9.addConstraint([
    Sketcher.Constraint("Coincident", 0, 2, 1, 1),
    Sketcher.Constraint("Coincident", 1, 2, 2, 1),
    Sketcher.Constraint("Coincident", 2, 2, 3, 1),
    Sketcher.Constraint("Coincident", 3, 2, 0, 1),
    Sketcher.Constraint("Vertical", 0),
    Sketcher.Constraint("Horizontal", 1),
    Sketcher.Constraint("Vertical", 2),
    Sketcher.Constraint("Horizontal", 3),
    Sketcher.Constraint("Equal", 3, 0),
    Sketcher.Constraint("DistanceX", 1, 1, 1, 2, Q("1.6 mm")),
    Sketcher.Constraint("DistanceX", 1, 2, -1, 1, Q("3 mm")),
    Sketcher.Constraint("DistanceY", -1, 1, 0, 2, Q("7.5 mm")),
])
pad9 = body17.newObject("PartDesign::Pad", "Pad008")
pad9.Profile = sketch9
pad9.Length = 30
body18 = doc.addObject("PartDesign::Body", "Body017")

sketch10 = body18.newObject("Sketcher::SketchObject", "Sketch009")
sketch10.AttachmentSupport = (doc.getObject("XY_Plane017"), [""])
sketch10.MapMode = "FlatFace"
sketch10.AttachmentOffset = App.Placement(App.Vector(0, 0, -15), App.Rotation())
sketch10.addGeometry([
    Part.LineSegment(App.Vector(-4.6, -7.5, 0), App.Vector(-4.6, -9.1, 0)),
    Part.LineSegment(App.Vector(-4.6, -9.1, 0), App.Vector(-3, -9.1, 0)),
    Part.LineSegment(App.Vector(-3, -9.1, 0), App.Vector(-3, -7.5, 0)),
    Part.LineSegment(App.Vector(-3, -7.5, 0), App.Vector(-4.6, -7.5, 0)),
], False)
sketch10.addConstraint([
    Sketcher.Constraint("Coincident", 0, 2, 1, 1),
    Sketcher.Constraint("Coincident", 1, 2, 2, 1),
    Sketcher.Constraint("Coincident", 2, 2, 3, 1),
    Sketcher.Constraint("Coincident", 3, 2, 0, 1),
    Sketcher.Constraint("Vertical", 0),
    Sketcher.Constraint("Horizontal", 1),
    Sketcher.Constraint("Vertical", 2),
    Sketcher.Constraint("Horizontal", 3),
    Sketcher.Constraint("Equal", 3, 0),
    Sketcher.Constraint("DistanceX", 1, 1, 1, 2, Q("1.6 mm")),
    Sketcher.Constraint("DistanceX", 1, 2, -1, 1, Q("3 mm")),
    Sketcher.Constraint("DistanceY", 0, 2, -1, 1, Q("9.1 mm")),
])
pad10 = body18.newObject("PartDesign::Pad", "Pad009")
pad10.Profile = sketch10
pad10.Length = 30
body19 = doc.addObject("PartDesign::Body", "Body018")

sketch11 = body19.newObject("Sketcher::SketchObject", "Sketch010")
sketch11.AttachmentSupport = (doc.getObject("XY_Plane018"), [""])
sketch11.MapMode = "FlatFace"
sketch11.AttachmentOffset = App.Placement(App.Vector(0, 0, -15), App.Rotation())
sketch11.addGeometry(Part.Circle(App.Vector(0, 0, 0), App.Vector(0, 0, 1), 7.6), False)
sketch11.addConstraint([
    Sketcher.Constraint("Coincident", 0, 3, -1, 1),
    Sketcher.Constraint("Diameter", 0, Q("15.2 mm")),
])
pad11 = body19.newObject("PartDesign::Pad", "Pad010")
pad11.Profile = sketch11
pad11.Length = 30
body20 = doc.addObject("PartDesign::Body", "Body019")

sketch12 = body20.newObject("Sketcher::SketchObject", "Sketch011")
sketch12.AttachmentSupport = (doc.getObject("XY_Plane019"), [""])
sketch12.MapMode = "FlatFace"
sketch12.AttachmentOffset = App.Placement(App.Vector(0, 0, -15), App.Rotation())
sketch12.addGeometry(Part.Circle(App.Vector(0, 0, 0), App.Vector(0, 0, 1), 9.2), False)
sketch12.addConstraint([
    Sketcher.Constraint("Coincident", 0, 3, -1, 1),
    Sketcher.Constraint("Diameter", 0, Q("18.4 mm")),
])
pad12 = body20.newObject("PartDesign::Pad", "Pad011")
pad12.Profile = sketch12
pad12.Length = 30
doc.recompute()

boolean14 = body20.newObject("PartDesign::Boolean", "Boolean013")
boolean14.Type = "Cut"
boolean14.addObjects([body19])
doc.recompute()

boolean15 = body20.newObject("PartDesign::Boolean", "Boolean014")
boolean15.Type = "Fuse"
boolean15.addObjects([body15])
doc.recompute()

boolean16 = body20.newObject("PartDesign::Boolean", "Boolean015")
boolean16.Type = "Fuse"
boolean16.addObjects([body16])
doc.recompute()

boolean17 = body20.newObject("PartDesign::Boolean", "Boolean016")
boolean17.Type = "Fuse"
boolean17.addObjects([body17])
doc.recompute()

boolean18 = body20.newObject("PartDesign::Boolean", "Boolean017")
boolean18.Type = "Fuse"
boolean18.addObjects([body18])
doc.recompute()

boolean19 = body20.newObject("PartDesign::Boolean", "Boolean018")
boolean19.Type = "Cut"
boolean19.addObjects([body14])
body21 = doc.addObject("PartDesign::Body", "Body020")
doc.recompute()

body20.Placement = App.Placement(App.Vector(0, 0, 0), App.Rotation(App.Vector(1, 0, 0), 90))
boolean20 = body21.newObject("PartDesign::Boolean", "Boolean019")
boolean20.Type = "Fuse"
boolean20.addObjects([body20])
body22 = doc.addObject("PartDesign::Body", "Body021")
doc.recompute()

body21.Placement = App.Placement(App.Vector(298, 252, 340), App.Rotation(App.Vector(0, 0, 1), 90))
boolean21 = body22.newObject("PartDesign::Boolean", "Boolean020")
boolean21.Type = "Fuse"
boolean21.addObjects([body21])

doc.recompute()
